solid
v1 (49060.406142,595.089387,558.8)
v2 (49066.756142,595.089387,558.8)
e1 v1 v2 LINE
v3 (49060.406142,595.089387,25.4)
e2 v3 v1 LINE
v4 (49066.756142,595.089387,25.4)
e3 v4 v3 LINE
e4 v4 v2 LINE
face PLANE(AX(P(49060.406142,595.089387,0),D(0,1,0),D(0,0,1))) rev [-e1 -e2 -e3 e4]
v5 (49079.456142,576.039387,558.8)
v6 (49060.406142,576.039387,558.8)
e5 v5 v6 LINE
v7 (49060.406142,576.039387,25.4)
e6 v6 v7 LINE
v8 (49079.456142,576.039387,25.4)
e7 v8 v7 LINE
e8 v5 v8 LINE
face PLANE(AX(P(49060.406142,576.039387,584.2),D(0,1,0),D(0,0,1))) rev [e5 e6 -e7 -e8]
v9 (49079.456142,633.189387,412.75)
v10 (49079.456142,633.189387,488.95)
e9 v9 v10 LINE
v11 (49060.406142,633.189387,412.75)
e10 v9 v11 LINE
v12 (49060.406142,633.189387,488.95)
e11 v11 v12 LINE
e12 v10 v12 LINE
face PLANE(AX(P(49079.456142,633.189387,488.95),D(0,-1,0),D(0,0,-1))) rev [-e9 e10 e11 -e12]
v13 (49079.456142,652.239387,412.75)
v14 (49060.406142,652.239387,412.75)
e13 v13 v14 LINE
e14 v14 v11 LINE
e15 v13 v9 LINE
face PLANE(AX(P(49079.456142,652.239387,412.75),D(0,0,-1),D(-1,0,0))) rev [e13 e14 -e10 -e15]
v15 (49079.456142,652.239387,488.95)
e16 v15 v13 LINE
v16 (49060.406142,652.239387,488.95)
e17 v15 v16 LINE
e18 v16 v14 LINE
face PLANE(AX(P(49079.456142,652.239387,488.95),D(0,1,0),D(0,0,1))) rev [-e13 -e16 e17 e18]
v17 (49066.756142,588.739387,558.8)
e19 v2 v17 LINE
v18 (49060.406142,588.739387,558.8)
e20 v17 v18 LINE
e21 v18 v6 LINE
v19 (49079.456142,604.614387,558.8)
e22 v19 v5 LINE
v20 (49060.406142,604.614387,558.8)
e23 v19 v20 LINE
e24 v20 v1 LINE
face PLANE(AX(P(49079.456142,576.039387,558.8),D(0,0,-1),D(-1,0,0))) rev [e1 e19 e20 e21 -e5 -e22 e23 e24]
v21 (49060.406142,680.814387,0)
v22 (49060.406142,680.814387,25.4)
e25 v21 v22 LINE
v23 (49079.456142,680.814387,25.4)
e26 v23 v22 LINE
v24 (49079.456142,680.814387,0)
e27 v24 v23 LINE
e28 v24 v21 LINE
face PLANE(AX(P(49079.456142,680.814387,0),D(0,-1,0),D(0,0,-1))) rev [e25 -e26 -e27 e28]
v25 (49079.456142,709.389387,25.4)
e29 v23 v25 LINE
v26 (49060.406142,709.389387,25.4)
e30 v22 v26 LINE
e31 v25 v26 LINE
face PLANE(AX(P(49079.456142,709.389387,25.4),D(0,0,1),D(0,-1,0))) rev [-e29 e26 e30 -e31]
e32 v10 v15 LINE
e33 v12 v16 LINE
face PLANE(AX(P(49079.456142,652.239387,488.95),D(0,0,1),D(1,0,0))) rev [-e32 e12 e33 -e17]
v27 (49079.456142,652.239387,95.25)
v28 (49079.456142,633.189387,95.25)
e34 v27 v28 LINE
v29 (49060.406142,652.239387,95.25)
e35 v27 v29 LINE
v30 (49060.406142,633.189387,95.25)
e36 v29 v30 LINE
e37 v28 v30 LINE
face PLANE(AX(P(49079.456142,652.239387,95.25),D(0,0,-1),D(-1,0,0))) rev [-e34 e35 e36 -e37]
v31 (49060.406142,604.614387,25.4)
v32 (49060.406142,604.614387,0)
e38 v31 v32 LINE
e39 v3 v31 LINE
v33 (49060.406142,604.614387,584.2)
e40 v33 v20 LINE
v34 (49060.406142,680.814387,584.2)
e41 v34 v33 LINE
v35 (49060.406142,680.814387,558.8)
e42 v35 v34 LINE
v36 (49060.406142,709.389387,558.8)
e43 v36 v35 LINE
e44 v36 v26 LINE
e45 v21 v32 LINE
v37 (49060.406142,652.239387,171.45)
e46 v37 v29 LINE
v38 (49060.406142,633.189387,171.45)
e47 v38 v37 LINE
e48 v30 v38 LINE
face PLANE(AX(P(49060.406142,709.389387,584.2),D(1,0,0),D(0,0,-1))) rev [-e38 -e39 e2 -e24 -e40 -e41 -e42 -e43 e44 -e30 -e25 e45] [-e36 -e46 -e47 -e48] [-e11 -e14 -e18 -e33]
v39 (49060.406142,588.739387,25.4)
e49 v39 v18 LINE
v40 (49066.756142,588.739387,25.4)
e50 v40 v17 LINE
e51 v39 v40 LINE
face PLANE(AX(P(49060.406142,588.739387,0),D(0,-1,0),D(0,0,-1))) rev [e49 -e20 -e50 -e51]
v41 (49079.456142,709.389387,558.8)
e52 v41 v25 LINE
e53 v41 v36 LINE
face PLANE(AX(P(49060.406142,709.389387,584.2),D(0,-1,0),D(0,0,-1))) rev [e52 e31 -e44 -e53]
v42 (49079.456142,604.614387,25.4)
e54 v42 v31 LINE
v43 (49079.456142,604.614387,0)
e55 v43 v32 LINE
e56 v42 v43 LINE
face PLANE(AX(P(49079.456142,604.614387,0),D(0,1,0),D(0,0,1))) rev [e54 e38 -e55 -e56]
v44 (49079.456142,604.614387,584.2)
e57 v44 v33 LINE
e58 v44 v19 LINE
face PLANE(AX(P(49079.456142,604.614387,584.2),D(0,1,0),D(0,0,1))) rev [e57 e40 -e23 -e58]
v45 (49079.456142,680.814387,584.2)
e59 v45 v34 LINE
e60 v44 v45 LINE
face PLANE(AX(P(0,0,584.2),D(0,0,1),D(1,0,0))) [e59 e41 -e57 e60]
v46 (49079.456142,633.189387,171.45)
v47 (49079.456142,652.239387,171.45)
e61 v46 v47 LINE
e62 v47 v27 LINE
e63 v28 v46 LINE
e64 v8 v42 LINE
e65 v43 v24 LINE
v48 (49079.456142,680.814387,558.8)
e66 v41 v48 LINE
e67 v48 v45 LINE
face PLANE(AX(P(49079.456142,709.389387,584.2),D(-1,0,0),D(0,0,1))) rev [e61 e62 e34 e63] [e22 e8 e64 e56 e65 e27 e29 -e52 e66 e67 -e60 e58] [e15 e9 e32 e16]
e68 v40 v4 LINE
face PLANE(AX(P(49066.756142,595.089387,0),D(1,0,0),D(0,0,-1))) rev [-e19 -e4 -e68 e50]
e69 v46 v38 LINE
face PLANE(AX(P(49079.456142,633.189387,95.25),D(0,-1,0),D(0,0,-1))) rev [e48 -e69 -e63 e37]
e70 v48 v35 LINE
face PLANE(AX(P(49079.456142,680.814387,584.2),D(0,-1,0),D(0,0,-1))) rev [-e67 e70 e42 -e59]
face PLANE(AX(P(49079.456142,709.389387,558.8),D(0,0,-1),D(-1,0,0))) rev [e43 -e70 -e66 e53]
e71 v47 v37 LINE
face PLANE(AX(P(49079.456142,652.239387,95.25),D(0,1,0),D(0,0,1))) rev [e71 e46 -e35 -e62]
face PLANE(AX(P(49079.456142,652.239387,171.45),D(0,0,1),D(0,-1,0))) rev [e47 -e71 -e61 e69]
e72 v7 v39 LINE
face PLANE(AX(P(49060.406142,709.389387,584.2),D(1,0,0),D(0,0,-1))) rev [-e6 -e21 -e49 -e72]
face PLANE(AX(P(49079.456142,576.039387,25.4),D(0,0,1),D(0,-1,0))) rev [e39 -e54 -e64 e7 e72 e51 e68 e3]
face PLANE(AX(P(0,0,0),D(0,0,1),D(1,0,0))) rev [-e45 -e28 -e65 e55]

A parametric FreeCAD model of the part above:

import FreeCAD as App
import Part
import Sketcher
Q = App.Units.Quantity

doc = App.newDocument("Part")
body = doc.addObject("PartDesign::Body", "Body")

# Sketch on XY plane
sketch1 = body.newObject("Sketcher::SketchObject", "Sketch")
sketch1.AttachmentSupport = (doc.getObject("XY_Plane"), [""])
sketch1.MapMode = "FlatFace"
sketch1.addGeometry(Part.LineSegment(App.Vector(49060.406142, 709.389387, 0), App.Vector(49060.406142, 576.039387, 0)), False)
sketch1.addGeometry(Part.LineSegment(App.Vector(49060.406142, 576.039387, 0), App.Vector(49079.456142, 576.039387, 0)), False)
sketch1.addGeometry(Part.LineSegment(App.Vector(49079.456142, 576.039387, 0), App.Vector(49079.456142, 709.389387, 0)), False)
sketch1.addGeometry(Part.LineSegment(App.Vector(49079.456142, 709.389387, 0), App.Vector(49060.406142, 709.389387, 0)), False)
sketch1.addConstraint(Sketcher.Constraint("Coincident", 0, 2, 1, 1))
sketch1.addConstraint(Sketcher.Constraint("Coincident", 1, 2, 2, 1))
sketch1.addConstraint(Sketcher.Constraint("Coincident", 2, 2, 3, 1))
sketch1.addConstraint(Sketcher.Constraint("Coincident", 3, 2, 0, 1))
sketch1.addConstraint(Sketcher.Constraint("Vertical", 0))
sketch1.addConstraint(Sketcher.Constraint("Horizontal", 1))
sketch1.addConstraint(Sketcher.Constraint("Vertical", 2))
sketch1.addConstraint(Sketcher.Constraint("Horizontal", 3))
sketch1.addConstraint(Sketcher.Constraint("DistanceX", 1, 1, 1, 2, Q("0.75 in")))
sketch1.addConstraint(Sketcher.Constraint("DistanceY", 0, 2, 0, 1, Q("5.25 in")))
sketch1.addConstraint(Sketcher.Constraint("DistanceX", -1, 1, 0, 2, Q("49060.406142 mm")))
sketch1.addConstraint(Sketcher.Constraint("DistanceY", -1, 1, 0, 2, Q("576.039387 mm")))
pad1 = body.newObject("PartDesign::Pad", "Pad")
pad1.Profile = sketch1
pad1.Length = Q("23 in")

# Sketch on YZ plane
sketch2 = body.newObject("Sketcher::SketchObject", "Sketch001")
sketch2.AttachmentSupport = (doc.getObject("YZ_Plane"), [""])
sketch2.MapMode = "FlatFace"
sketch2.AttachmentOffset = App.Placement(App.Vector(0, 0, 49060.406142), App.Rotation())
sketch2.addGeometry(Part.LineSegment(App.Vector(652.239387, 95.25, 0), App.Vector(633.189387, 95.25, 0)), False)
sketch2.addGeometry(Part.LineSegment(App.Vector(633.189387, 95.25, 0), App.Vector(633.189387, 171.45, 0)), False)
sketch2.addGeometry(Part.LineSegment(App.Vector(633.189387, 171.45, 0), App.Vector(652.239387, 171.45, 0)), False)
sketch2.addGeometry(Part.LineSegment(App.Vector(652.239387, 171.45, 0), App.Vector(652.239387, 95.25, 0)), False)
sketch2.addGeometry(Part.LineSegment(App.Vector(652.239387, 412.75, 0), App.Vector(633.189387, 412.75, 0)), False)
sketch2.addGeometry(Part.LineSegment(App.Vector(633.189387, 412.75, 0), App.Vector(633.189387, 488.95, 0)), False)
sketch2.addGeometry(Part.LineSegment(App.Vector(633.189387, 488.95, 0), App.Vector(652.239387, 488.95, 0)), False)
sketch2.addGeometry(Part.LineSegment(App.Vector(652.239387, 488.95, 0), App.Vector(652.239387, 412.75, 0)), False)
sketch2.addGeometry(Part.LineSegment(App.Vector(709.389387, 558.8, 0), App.Vector(680.814387, 558.8, 0)), False)
sketch2.addGeometry(Part.LineSegment(App.Vector(680.814387, 558.8, 0), App.Vector(680.814387, 584.2, 0)), False)
sketch2.addGeometry(Part.LineSegment(App.Vector(680.814387, 584.2, 0), App.Vector(709.389387, 584.2, 0)), False)
sketch2.addGeometry(Part.LineSegment(App.Vector(709.389387, 584.2, 0), App.Vector(709.389387, 558.8, 0)), False)
sketch2.addGeometry(Part.LineSegment(App.Vector(709.389387, 0, 0), App.Vector(680.814387, 0, 0)), False)
sketch2.addGeometry(Part.LineSegment(App.Vector(680.814387, 0, 0), App.Vector(680.814387, 25.4, 0)), False)
sketch2.addGeometry(Part.LineSegment(App.Vector(680.814387, 25.4, 0), App.Vector(709.389387, 25.4, 0)), False)
sketch2.addGeometry(Part.LineSegment(App.Vector(709.389387, 25.4, 0), App.Vector(709.389387, 0, 0)), False)
sketch2.addGeometry(Part.LineSegment(App.Vector(604.614387, 0, 0), App.Vector(576.039387, 0, 0)), False)
sketch2.addGeometry(Part.LineSegment(App.Vector(576.039387, 0, 0), App.Vector(576.039387, 25.4, 0)), False)
sketch2.addGeometry(Part.LineSegment(App.Vector(576.039387, 25.4, 0), App.Vector(604.614387, 25.4, 0)), False)
sketch2.addGeometry(Part.LineSegment(App.Vector(604.614387, 25.4, 0), App.Vector(604.614387, 0, 0)), False)
sketch2.addGeometry(Part.LineSegment(App.Vector(604.614387, 558.8, 0), App.Vector(576.039387, 558.8, 0)), False)
sketch2.addGeometry(Part.LineSegment(App.Vector(576.039387, 558.8, 0), App.Vector(576.039387, 584.2, 0)), False)
sketch2.addGeometry(Part.LineSegment(App.Vector(576.039387, 584.2, 0), App.Vector(604.614387, 584.2, 0)), False)
sketch2.addGeometry(Part.LineSegment(App.Vector(604.614387, 584.2, 0), App.Vector(604.614387, 558.8, 0)), False)
sketch2.addConstraint(Sketcher.Constraint("Coincident", 0, 2, 1, 1))
sketch2.addConstraint(Sketcher.Constraint("Coincident", 1, 2, 2, 1))
sketch2.addConstraint(Sketcher.Constraint("Coincident", 2, 2, 3, 1))
sketch2.addConstraint(Sketcher.Constraint("Coincident", 3, 2, 0, 1))
sketch2.addConstraint(Sketcher.Constraint("Coincident", 4, 2, 5, 1))
sketch2.addConstraint(Sketcher.Constraint("Coincident", 5, 2, 6, 1))
sketch2.addConstraint(Sketcher.Constraint("Coincident", 6, 2, 7, 1))
sketch2.addConstraint(Sketcher.Constraint("Coincident", 7, 2, 4, 1))
sketch2.addConstraint(Sketcher.Constraint("Coincident", 8, 2, 9, 1))
sketch2.addConstraint(Sketcher.Constraint("Coincident", 9, 2, 10, 1))
sketch2.addConstraint(Sketcher.Constraint("Coincident", 10, 2, 11, 1))
sketch2.addConstraint(Sketcher.Constraint("Coincident", 11, 2, 8, 1))
sketch2.addConstraint(Sketcher.Constraint("Coincident", 12, 2, 13, 1))
sketch2.addConstraint(Sketcher.Constraint("Coincident", 13, 2, 14, 1))
sketch2.addConstraint(Sketcher.Constraint("Coincident", 14, 2, 15, 1))
sketch2.addConstraint(Sketcher.Constraint("Coincident", 15, 2, 12, 1))
sketch2.addConstraint(Sketcher.Constraint("Coincident", 16, 2, 17, 1))
sketch2.addConstraint(Sketcher.Constraint("Coincident", 17, 2, 18, 1))
sketch2.addConstraint(Sketcher.Constraint("Coincident", 18, 2, 19, 1))
sketch2.addConstraint(Sketcher.Constraint("Coincident", 19, 2, 16, 1))
sketch2.addConstraint(Sketcher.Constraint("Coincident", 20, 2, 21, 1))
sketch2.addConstraint(Sketcher.Constraint("Coincident", 21, 2, 22, 1))
sketch2.addConstraint(Sketcher.Constraint("Coincident", 22, 2, 23, 1))
sketch2.addConstraint(Sketcher.Constraint("Coincident", 23, 2, 20, 1))
sketch2.addConstraint(Sketcher.Constraint("Horizontal", 0))
sketch2.addConstraint(Sketcher.Constraint("Vertical", 1))
sketch2.addConstraint(Sketcher.Constraint("Horizontal", 2))
sketch2.addConstraint(Sketcher.Constraint("Vertical", 3))
sketch2.addConstraint(Sketcher.Constraint("Horizontal", 4))
sketch2.addConstraint(Sketcher.Constraint("Vertical", 5))
sketch2.addConstraint(Sketcher.Constraint("Horizontal", 6))
sketch2.addConstraint(Sketcher.Constraint("Vertical", 7))
sketch2.addConstraint(Sketcher.Constraint("Horizontal", 8))
sketch2.addConstraint(Sketcher.Constraint("Vertical", 9))
sketch2.addConstraint(Sketcher.Constraint("Horizontal", 10))
sketch2.addConstraint(Sketcher.Constraint("Vertical", 11))
sketch2.addConstraint(Sketcher.Constraint("Horizontal", 12))
sketch2.addConstraint(Sketcher.Constraint("Vertical", 13))
sketch2.addConstraint(Sketcher.Constraint("Horizontal", 14))
sketch2.addConstraint(Sketcher.Constraint("Vertical", 15))
sketch2.addConstraint(Sketcher.Constraint("Horizontal", 16))
sketch2.addConstraint(Sketcher.Constraint("Vertical", 17))
sketch2.addConstraint(Sketcher.Constraint("Horizontal", 18))
sketch2.addConstraint(Sketcher.Constraint("Vertical", 19))
sketch2.addConstraint(Sketcher.Constraint("Horizontal", 20))
sketch2.addConstraint(Sketcher.Constraint("Vertical", 21))
sketch2.addConstraint(Sketcher.Constraint("Horizontal", 22))
sketch2.addConstraint(Sketcher.Constraint("Vertical", 23))
sketch2.addConstraint(Sketcher.Constraint("PointOnObject", 12, 2, -1))
sketch2.addConstraint(Sketcher.Constraint("PointOnObject", 16, 2, -1))
sketch2.addConstraint(Sketcher.Constraint("Horizontal", 14, 2, 17, 2))
sketch2.addConstraint(Sketcher.Constraint("Horizontal", 11, 2, 20, 2))
sketch2.addConstraint(Sketcher.Constraint("Horizontal", 10, 2, 21, 2))
sketch2.addConstraint(Sketcher.Constraint("Vertical", 1, 2, 4, 2))
sketch2.addConstraint(Sketcher.Constraint("Vertical", 3, 2, 6, 2))
sketch2.addConstraint(Sketcher.Constraint("Vertical", 9, 2, 12, 2))
sketch2.addConstraint(Sketcher.Constraint("Vertical", 11, 2, 14, 2))
sketch2.addConstraint(Sketcher.Constraint("Vertical", 17, 2, 20, 2))
sketch2.addConstraint(Sketcher.Constraint("Vertical", 19, 2, 22, 2))
sketch2.addConstraint(Sketcher.Constraint("Equal", 14, 16))
sketch2.addConstraint(Sketcher.Constraint("Equal", 3, 5))
sketch2.addConstraint(Sketcher.Constraint("Equal", 11, 13))
sketch2.addConstraint(Sketcher.Constraint("DistanceY", 1, 1, 1, 2, Q("3 in")))
sketch2.addConstraint(Sketcher.Constraint("DistanceY", 9, 1, 9, 2, Q("1 in")))
sketch2.addConstraint(Sketcher.Constraint("DistanceY", -1, 1, 8, 2, Q("22 in")))
sketch2.addConstraint(Sketcher.Constraint("DistanceX", 5, 2, 10, 2, Q("3 in")))
sketch2.addConstraint(Sketcher.Constraint("DistanceX", 16, 2, 3, 2, Q("3 in")))
sketch2.addConstraint(Sketcher.Constraint("DistanceX", 18, 2, 13, 2, Q("3 in")))
sketch2.addConstraint(Sketcher.Constraint("DistanceX", 0, 2, 0, 1, Q("0.75 in")))
sketch2.addConstraint(Sketcher.Constraint("DistanceY", 1, 2, 4, 2, Q("9.5 in")))
sketch2.addConstraint(Sketcher.Constraint("DistanceY", -1, 1, 0, 2, Q("3.75 in")))
sketch2.addConstraint(Sketcher.Constraint("DistanceX", -1, 1, 0, 2, Q("633.189387 mm")))
pocket1 = body.newObject("PartDesign::Pocket", "Pocket")
pocket1.Profile = sketch2
pocket1.Type = "ThroughAll"
pocket1.Reversed = True

# Sketch on XY plane
sketch3 = body.newObject("Sketcher::SketchObject", "Sketch002")
sketch3.AttachmentSupport = (doc.getObject("XY_Plane"), [""])
sketch3.MapMode = "FlatFace"
sketch3.AttachmentOffset = App.Placement(App.Vector(0, 0, 23 * 25.4), App.Rotation())
sketch3.addGeometry(Part.LineSegment(App.Vector(49060.406142, 595.089387, 0), App.Vector(49060.406142, 588.739387, 0)), False)
sketch3.addGeometry(Part.LineSegment(App.Vector(49060.406142, 588.739387, 0), App.Vector(49066.756142, 588.739387, 0)), False)
sketch3.addGeometry(Part.LineSegment(App.Vector(49066.756142, 588.739387, 0), App.Vector(49066.756142, 595.089387, 0)), False)
sketch3.addGeometry(Part.LineSegment(App.Vector(49066.756142, 595.089387, 0), App.Vector(49060.406142, 595.089387, 0)), False)
sketch3.addConstraint(Sketcher.Constraint("Coincident", 0, 2, 1, 1))
sketch3.addConstraint(Sketcher.Constraint("Coincident", 1, 2, 2, 1))
sketch3.addConstraint(Sketcher.Constraint("Coincident", 2, 2, 3, 1))
sketch3.addConstraint(Sketcher.Constraint("Coincident", 3, 2, 0, 1))
sketch3.addConstraint(Sketcher.Constraint("Vertical", 0))
sketch3.addConstraint(Sketcher.Constraint("Horizontal", 1))
sketch3.addConstraint(Sketcher.Constraint("Vertical", 2))
sketch3.addConstraint(Sketcher.Constraint("Horizontal", 3))
sketch3.addConstraint(Sketcher.Constraint("Equal", 3, 0))
sketch3.addConstraint(Sketcher.Constraint("DistanceX", 1, 1, 1, 2, Q("0.25 in")))
sketch3.addConstraint(Sketcher.Constraint("DistanceX", -1, 1, 0, 2, Q("49060.406142 mm")))
sketch3.addConstraint(Sketcher.Constraint("DistanceY", -1, 1, 0, 2, Q("588.739387 mm")))
pocket2 = body.newObject("PartDesign::Pocket", "Pocket001")
pocket2.Profile = sketch3
pocket2.Type = "ThroughAll"

doc.recompute()
